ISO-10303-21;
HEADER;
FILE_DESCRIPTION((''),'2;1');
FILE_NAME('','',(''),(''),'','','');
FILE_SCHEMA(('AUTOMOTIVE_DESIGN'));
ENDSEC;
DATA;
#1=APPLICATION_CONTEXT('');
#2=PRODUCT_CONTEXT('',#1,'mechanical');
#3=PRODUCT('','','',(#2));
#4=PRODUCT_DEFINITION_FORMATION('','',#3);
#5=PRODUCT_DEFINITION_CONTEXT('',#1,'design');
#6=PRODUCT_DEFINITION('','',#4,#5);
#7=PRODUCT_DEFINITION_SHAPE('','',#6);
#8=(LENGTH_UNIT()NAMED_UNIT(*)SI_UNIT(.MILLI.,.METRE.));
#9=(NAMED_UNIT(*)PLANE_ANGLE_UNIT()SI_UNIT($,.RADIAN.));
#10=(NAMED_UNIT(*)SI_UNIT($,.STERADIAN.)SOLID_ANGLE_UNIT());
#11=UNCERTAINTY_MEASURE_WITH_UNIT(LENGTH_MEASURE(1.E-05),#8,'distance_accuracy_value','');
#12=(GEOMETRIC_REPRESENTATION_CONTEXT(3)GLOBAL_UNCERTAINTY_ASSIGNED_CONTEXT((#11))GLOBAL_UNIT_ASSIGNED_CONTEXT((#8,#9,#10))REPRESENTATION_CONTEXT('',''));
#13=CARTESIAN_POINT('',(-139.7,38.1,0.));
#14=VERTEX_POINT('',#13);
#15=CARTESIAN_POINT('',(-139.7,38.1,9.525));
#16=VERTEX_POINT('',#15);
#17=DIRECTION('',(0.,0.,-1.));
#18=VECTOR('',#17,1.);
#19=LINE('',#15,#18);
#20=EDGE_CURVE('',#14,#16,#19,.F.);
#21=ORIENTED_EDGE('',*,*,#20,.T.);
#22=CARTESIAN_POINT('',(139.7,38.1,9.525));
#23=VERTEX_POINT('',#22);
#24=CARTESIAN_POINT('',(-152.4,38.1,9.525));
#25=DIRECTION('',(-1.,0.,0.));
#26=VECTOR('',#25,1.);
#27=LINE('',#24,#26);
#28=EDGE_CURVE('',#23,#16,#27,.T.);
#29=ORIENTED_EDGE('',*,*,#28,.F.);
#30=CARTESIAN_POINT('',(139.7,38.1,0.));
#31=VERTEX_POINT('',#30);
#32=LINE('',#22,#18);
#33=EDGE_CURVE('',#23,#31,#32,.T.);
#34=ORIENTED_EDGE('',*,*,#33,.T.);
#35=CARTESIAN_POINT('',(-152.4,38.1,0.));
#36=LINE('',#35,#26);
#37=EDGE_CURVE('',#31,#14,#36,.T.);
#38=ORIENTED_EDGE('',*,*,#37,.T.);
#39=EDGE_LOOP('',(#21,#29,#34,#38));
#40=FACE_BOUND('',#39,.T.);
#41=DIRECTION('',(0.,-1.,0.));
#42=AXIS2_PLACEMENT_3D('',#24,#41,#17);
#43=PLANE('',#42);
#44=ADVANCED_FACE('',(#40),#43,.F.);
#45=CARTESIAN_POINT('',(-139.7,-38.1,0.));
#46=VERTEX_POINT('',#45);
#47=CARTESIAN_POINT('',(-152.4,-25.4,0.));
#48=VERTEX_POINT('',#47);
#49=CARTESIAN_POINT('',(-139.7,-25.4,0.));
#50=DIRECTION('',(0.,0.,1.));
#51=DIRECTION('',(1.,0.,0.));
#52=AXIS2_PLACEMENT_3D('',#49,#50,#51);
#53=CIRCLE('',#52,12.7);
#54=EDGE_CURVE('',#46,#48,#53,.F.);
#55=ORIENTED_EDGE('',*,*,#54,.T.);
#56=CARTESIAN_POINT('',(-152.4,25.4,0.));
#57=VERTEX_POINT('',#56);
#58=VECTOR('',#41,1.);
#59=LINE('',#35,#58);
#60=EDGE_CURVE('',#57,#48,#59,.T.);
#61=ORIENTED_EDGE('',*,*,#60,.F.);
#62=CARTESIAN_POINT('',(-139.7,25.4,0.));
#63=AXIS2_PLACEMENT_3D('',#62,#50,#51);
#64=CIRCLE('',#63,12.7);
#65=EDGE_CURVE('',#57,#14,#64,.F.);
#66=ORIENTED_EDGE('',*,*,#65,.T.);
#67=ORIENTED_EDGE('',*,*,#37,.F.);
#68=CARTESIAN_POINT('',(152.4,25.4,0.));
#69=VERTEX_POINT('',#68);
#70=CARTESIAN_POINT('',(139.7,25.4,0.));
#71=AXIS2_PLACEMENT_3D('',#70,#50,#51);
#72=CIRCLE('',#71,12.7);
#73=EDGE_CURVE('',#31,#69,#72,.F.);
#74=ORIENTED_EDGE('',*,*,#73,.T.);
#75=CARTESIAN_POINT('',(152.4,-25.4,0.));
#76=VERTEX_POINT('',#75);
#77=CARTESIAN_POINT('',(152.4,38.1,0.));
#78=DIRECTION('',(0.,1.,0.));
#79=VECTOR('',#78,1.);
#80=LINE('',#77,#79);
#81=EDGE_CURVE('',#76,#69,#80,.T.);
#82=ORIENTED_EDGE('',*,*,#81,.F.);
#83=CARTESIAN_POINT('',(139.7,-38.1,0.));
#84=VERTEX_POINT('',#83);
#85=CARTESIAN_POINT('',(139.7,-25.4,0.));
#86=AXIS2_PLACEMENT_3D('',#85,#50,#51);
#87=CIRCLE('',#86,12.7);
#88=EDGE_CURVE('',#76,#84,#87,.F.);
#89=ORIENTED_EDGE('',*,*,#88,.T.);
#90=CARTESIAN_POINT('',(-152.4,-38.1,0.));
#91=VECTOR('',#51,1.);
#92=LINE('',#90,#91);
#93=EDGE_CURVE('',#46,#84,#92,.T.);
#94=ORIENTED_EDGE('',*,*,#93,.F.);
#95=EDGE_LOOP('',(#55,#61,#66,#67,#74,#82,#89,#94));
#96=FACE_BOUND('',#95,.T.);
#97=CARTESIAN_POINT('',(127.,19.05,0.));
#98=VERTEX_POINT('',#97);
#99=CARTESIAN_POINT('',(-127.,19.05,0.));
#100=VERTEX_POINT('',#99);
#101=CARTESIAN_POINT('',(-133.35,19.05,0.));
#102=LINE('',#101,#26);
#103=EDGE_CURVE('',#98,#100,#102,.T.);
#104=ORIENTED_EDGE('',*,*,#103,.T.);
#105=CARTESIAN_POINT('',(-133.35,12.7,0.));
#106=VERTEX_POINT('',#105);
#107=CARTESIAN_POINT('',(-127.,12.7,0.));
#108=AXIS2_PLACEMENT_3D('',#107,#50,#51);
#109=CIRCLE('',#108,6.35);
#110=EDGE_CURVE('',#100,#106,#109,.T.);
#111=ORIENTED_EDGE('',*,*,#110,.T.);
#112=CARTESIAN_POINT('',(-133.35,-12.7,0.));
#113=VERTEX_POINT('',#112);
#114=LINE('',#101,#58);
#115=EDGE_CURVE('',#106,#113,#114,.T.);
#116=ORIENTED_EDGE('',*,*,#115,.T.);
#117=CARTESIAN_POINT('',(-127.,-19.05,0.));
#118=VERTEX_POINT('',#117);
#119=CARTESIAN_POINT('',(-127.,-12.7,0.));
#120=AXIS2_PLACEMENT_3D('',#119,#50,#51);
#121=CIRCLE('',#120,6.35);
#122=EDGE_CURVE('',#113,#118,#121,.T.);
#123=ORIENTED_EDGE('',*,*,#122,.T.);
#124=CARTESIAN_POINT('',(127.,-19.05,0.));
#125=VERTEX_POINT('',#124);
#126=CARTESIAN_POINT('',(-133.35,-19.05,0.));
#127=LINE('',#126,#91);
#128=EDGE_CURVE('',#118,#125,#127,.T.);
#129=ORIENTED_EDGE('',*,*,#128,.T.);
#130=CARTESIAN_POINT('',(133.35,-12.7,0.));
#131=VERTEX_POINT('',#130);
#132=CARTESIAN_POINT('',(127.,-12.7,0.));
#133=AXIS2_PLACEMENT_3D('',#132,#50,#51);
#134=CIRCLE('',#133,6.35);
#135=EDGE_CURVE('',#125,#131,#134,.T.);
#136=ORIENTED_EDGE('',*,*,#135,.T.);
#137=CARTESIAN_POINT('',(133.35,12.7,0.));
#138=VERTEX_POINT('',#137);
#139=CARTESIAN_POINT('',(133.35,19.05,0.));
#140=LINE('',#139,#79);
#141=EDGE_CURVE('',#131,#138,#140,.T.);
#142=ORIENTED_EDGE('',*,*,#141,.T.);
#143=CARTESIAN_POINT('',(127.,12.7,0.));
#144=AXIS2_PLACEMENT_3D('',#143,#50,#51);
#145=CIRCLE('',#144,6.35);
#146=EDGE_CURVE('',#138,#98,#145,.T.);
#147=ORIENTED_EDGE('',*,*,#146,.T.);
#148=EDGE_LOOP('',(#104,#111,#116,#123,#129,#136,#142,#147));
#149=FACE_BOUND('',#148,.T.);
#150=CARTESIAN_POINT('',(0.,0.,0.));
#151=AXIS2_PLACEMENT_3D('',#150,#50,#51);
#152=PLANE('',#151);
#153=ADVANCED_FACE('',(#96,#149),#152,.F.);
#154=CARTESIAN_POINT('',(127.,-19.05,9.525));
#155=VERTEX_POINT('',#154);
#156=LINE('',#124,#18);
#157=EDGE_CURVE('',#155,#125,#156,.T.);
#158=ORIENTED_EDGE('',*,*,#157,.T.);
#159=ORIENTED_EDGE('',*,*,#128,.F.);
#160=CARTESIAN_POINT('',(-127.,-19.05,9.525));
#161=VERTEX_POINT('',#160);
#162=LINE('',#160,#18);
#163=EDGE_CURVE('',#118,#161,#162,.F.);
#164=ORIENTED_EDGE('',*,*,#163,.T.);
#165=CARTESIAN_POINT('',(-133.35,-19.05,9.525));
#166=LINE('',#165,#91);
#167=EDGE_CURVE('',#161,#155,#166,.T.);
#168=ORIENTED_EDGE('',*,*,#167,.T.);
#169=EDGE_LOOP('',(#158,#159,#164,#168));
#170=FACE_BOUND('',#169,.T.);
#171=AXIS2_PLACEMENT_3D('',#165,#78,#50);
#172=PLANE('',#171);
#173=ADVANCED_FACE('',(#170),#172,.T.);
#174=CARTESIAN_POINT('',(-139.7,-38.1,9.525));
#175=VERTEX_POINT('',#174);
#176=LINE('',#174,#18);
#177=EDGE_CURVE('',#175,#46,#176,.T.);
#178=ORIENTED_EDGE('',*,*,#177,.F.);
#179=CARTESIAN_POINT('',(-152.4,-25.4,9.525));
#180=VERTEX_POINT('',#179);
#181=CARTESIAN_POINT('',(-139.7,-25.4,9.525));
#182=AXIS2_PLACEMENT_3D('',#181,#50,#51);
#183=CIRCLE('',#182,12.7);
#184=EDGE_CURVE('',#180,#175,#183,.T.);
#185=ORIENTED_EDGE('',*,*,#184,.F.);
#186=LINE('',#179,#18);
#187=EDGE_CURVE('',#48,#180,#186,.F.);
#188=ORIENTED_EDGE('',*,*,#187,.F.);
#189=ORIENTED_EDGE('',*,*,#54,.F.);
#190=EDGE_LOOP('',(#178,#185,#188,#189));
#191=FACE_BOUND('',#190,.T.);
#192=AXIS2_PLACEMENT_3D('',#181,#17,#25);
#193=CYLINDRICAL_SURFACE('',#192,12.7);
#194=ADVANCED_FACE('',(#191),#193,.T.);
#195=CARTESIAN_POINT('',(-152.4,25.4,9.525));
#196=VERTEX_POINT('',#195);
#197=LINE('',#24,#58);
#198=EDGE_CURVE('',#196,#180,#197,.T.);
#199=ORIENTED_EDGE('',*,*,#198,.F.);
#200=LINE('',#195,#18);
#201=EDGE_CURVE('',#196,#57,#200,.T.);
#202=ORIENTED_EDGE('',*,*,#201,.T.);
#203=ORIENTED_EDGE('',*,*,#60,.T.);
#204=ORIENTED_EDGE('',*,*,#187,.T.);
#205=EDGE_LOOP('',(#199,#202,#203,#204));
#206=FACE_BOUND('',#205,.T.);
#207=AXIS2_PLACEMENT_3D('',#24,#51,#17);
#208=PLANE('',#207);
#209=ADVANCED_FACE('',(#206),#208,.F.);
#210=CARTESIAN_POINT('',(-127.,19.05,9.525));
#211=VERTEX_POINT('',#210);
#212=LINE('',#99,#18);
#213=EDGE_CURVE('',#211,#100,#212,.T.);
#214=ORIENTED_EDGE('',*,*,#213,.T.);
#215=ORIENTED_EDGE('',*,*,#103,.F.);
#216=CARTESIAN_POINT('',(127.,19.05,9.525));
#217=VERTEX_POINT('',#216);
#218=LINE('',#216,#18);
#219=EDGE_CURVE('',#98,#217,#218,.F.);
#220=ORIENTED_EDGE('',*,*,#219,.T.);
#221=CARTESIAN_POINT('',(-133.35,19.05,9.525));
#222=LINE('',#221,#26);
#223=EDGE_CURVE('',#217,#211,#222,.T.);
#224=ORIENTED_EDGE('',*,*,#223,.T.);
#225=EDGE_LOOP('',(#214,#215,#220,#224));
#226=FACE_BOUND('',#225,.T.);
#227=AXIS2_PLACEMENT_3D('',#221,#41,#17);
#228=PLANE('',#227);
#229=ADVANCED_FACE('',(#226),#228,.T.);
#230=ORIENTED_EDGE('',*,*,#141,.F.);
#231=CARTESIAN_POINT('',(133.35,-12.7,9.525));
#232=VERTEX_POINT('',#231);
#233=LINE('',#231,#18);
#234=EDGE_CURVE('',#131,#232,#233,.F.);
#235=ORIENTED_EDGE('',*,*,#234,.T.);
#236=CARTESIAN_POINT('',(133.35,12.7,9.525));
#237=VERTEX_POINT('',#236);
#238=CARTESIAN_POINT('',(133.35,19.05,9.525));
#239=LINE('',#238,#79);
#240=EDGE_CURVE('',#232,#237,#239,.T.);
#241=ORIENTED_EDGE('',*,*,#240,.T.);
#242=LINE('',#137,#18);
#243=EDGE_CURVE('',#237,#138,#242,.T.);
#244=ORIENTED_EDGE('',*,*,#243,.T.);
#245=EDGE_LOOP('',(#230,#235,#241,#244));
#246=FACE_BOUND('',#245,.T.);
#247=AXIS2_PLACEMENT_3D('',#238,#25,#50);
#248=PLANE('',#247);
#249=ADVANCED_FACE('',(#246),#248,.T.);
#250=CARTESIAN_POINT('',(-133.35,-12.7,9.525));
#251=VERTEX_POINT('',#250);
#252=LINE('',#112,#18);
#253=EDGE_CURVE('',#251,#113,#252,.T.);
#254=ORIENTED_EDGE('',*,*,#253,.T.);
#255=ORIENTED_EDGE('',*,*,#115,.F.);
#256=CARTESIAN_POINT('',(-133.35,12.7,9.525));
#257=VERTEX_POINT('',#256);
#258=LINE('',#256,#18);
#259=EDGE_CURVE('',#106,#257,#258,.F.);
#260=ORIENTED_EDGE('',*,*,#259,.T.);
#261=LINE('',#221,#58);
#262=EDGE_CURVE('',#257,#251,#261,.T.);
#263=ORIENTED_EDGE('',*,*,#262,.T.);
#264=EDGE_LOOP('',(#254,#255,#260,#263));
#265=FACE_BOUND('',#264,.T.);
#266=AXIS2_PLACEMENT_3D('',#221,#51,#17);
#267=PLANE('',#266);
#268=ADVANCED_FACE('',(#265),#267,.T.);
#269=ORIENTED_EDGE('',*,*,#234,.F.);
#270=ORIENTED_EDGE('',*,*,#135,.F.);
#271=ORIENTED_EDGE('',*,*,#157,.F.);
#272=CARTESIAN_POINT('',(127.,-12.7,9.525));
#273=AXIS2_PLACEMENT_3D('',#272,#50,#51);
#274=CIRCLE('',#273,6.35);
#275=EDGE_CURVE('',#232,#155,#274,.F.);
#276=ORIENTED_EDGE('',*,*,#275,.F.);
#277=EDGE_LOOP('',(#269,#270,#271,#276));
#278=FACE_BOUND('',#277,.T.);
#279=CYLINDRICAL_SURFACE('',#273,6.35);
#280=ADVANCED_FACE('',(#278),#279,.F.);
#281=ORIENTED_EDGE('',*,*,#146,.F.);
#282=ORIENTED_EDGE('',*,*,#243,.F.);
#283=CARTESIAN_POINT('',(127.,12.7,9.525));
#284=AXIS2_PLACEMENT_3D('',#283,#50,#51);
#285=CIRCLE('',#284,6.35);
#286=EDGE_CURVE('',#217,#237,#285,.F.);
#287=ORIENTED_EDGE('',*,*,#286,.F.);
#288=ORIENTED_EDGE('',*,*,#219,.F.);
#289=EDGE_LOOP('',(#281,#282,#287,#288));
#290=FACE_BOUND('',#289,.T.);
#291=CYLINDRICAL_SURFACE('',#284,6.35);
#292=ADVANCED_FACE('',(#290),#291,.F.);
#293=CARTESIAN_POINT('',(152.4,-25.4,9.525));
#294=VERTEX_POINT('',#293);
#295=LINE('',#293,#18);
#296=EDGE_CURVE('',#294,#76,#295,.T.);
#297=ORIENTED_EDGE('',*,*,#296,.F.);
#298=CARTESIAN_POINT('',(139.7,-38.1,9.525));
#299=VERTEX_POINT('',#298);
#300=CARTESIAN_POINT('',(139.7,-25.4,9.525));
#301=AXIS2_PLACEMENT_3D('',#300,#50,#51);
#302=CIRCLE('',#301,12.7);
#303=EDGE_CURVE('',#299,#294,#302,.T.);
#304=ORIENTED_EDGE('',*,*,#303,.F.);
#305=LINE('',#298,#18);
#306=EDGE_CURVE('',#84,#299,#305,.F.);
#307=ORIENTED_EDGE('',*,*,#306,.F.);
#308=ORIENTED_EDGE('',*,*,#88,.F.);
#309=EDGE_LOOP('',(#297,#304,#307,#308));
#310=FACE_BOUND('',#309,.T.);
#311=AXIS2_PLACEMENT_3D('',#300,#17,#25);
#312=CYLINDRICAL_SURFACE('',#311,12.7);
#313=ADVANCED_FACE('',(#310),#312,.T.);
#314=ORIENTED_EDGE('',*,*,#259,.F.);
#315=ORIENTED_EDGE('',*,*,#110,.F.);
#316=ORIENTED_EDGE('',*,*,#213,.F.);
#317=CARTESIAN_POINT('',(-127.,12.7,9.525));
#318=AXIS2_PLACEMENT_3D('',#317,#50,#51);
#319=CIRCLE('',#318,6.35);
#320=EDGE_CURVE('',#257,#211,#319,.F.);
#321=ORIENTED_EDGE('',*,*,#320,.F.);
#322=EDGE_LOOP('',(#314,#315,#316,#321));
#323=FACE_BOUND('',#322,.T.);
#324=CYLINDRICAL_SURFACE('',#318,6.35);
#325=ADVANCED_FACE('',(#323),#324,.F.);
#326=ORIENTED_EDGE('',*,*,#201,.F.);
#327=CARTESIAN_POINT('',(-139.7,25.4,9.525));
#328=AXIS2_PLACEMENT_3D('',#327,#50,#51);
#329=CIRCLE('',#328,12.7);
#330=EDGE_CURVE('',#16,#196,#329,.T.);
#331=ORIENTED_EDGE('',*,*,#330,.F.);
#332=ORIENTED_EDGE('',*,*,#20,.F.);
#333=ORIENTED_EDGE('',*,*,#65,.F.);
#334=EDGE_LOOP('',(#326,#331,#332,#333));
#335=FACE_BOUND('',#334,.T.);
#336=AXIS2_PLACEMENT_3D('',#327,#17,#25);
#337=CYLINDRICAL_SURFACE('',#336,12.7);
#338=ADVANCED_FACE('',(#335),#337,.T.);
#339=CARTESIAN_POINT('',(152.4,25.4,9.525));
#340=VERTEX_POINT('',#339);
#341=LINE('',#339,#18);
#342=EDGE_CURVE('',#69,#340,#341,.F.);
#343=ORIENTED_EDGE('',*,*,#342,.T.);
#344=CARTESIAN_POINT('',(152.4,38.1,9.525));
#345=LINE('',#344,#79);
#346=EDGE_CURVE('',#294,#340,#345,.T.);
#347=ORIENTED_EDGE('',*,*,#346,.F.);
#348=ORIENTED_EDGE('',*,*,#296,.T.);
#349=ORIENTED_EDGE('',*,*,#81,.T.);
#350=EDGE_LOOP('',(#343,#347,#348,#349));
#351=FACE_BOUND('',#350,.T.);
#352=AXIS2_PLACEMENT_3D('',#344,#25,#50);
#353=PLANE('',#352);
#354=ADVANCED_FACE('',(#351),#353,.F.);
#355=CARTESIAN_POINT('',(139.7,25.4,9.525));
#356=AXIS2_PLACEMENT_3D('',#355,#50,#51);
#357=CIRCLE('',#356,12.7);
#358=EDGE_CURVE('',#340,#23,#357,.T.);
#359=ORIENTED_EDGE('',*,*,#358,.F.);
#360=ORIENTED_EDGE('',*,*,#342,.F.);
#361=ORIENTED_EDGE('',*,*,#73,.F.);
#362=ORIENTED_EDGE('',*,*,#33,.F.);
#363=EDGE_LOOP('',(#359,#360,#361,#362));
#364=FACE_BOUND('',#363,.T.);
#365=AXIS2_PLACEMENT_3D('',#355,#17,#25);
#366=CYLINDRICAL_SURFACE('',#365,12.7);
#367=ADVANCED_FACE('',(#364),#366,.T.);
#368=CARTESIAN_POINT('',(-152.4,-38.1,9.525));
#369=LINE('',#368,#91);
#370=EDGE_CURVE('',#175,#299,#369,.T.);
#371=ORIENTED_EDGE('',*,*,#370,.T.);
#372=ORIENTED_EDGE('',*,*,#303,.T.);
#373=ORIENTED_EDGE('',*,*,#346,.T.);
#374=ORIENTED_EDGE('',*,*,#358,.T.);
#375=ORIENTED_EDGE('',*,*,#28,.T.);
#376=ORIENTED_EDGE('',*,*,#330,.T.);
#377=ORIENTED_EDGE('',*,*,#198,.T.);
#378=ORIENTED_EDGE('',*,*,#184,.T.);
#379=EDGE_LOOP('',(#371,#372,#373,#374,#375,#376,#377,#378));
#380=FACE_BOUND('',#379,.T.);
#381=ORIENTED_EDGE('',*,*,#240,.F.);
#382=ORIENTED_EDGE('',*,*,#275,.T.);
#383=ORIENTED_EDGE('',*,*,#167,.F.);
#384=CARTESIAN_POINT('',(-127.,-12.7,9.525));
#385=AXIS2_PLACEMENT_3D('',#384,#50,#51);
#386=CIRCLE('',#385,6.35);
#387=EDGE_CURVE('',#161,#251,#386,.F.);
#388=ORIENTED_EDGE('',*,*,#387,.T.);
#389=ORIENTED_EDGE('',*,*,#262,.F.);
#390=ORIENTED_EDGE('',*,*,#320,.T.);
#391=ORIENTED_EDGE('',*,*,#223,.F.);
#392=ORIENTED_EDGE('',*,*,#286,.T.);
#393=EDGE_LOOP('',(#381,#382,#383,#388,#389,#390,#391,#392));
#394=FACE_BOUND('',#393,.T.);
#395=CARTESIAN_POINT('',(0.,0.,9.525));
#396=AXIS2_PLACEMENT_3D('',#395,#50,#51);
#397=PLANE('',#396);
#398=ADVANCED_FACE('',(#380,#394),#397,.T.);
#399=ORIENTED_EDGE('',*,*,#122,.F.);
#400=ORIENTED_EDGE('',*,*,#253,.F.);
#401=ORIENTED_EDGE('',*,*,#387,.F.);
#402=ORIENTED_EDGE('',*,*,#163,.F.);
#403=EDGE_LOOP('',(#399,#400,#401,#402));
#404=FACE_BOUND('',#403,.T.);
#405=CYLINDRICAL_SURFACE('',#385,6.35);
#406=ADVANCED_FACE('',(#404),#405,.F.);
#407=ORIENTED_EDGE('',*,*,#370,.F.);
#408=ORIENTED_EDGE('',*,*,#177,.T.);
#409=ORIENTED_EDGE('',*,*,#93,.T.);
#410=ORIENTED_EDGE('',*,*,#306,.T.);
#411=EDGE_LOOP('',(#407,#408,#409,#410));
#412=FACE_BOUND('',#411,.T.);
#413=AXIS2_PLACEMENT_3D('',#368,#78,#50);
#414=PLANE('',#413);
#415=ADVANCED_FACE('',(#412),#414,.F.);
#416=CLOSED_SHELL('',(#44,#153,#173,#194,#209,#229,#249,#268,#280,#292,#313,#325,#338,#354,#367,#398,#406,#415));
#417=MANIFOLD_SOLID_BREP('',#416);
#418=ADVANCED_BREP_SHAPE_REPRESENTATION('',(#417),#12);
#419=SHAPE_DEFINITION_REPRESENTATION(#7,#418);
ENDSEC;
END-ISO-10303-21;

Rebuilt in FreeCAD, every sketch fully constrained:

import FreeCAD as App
import Part
import Sketcher

V = App.Vector
Q = App.Units.Quantity


def edges_at(feature, points):
    """Names of the edges that pass closest to the given points."""
    edges = feature.Shape.Edges
    near = lambda p: min(range(len(edges)), key=lambda i: edges[i].distToShape(Part.Vertex(*p))[0])
    return sorted({f"Edge{near(p) + 1}" for p in points})


def add_polygon(sketch, points):
    """Adds a closed chain of lines whose ends are joined by coincident constraints."""
    first, n = sketch.GeometryCount, len(points)
    for a, b in zip(points, points[1:] + points[:1]):
        sketch.addGeometry(Part.LineSegment(App.Vector(*a, 0), App.Vector(*b, 0)), False)
    for i in range(n):
        sketch.addConstraint(Sketcher.Constraint("Coincident", first + i, 2, first + (i + 1) % n, 1))

doc = App.newDocument("Part")
params = doc.addObject("Spreadsheet::Sheet", "Params")
for row, (alias, value) in enumerate([
    ("sketch1_width", "12 in"),
    ("sketch1_height", "3 in"),
    ("sketch1_width2", "10.5 in"),
    ("sketch1_height2", "1.5 in"),
    ("pad1_length", "0.375 in"),
    ("fillet_radius", "0.5 in"),
    ("fillet2_radius", "0.25 in"),
], start=1):
    params.set(f"A{row}", alias)
    params.set(f"B{row}", "=" + value)
    params.setAlias(f"B{row}", alias)

body = doc.addObject("PartDesign::Body", "Body")

sketch1 = body.newObject("Sketcher::SketchObject", "Sketch")
sketch1.AttachmentSupport = (doc.getObject("XY_Plane"), [""])
sketch1.MapMode = "FlatFace"
add_polygon(sketch1, [(-152, 38), (-152, -38), (152, -38), (152, 38)])
add_polygon(sketch1, [(133, -19), (-133, -19), (-133, 19), (133, 19)])
sketch1.addConstraint([
    Sketcher.Constraint("Vertical", 0),
    Sketcher.Constraint("Horizontal", 1),
    Sketcher.Constraint("Vertical", 2),
    Sketcher.Constraint("Horizontal", 3),
    Sketcher.Constraint("Horizontal", 4),
    Sketcher.Constraint("Vertical", 5),
    Sketcher.Constraint("Horizontal", 6),
    Sketcher.Constraint("Vertical", 7),
    Sketcher.Constraint("Symmetric", 0, 2, 2, 2, -1, 1),
    Sketcher.Constraint("Symmetric", 4, 2, 6, 2, -1, 1),
    Sketcher.Constraint("DistanceX", 1, 1, 1, 2, Q("12 in")),
    Sketcher.Constraint("DistanceY", 0, 2, 0, 1, Q("3 in")),
    Sketcher.Constraint("DistanceX", 4, 2, 4, 1, Q("10.5 in")),
    Sketcher.Constraint("DistanceY", 5, 1, 5, 2, Q("1.5 in")),
])
sketch1.setExpression("Constraints[18]", "Params.sketch1_width")
sketch1.setExpression("Constraints[19]", "Params.sketch1_height")
sketch1.setExpression("Constraints[20]", "Params.sketch1_width2")
sketch1.setExpression("Constraints[21]", "Params.sketch1_height2")
pad1 = body.newObject("PartDesign::Pad", "Pad")
pad1.Profile = sketch1
pad1.setExpression("Length", "Params.pad1_length")
doc.recompute()

fillet = body.newObject("PartDesign::Fillet", "Fillet")
fillet.Base = (pad1, edges_at(pad1, [
    (152.4, -38.1, 4.763),
    (-152.4, -38.1, 4.763),
    (-152.4, 38.1, 4.763),
    (152.4, 38.1, 4.763),
]))
fillet.setExpression("Radius", "Params.fillet_radius")
doc.recompute()

fillet2 = body.newObject("PartDesign::Fillet", "Fillet001")
fillet2.Base = (fillet, edges_at(fillet, [
    (133.35, -19.05, 4.763),
    (133.35, 19.05, 4.763),
    (-133.35, 19.05, 4.763),
    (-133.35, -19.05, 4.763),
]))
fillet2.setExpression("Radius", "Params.fillet2_radius")

doc.recompute()
